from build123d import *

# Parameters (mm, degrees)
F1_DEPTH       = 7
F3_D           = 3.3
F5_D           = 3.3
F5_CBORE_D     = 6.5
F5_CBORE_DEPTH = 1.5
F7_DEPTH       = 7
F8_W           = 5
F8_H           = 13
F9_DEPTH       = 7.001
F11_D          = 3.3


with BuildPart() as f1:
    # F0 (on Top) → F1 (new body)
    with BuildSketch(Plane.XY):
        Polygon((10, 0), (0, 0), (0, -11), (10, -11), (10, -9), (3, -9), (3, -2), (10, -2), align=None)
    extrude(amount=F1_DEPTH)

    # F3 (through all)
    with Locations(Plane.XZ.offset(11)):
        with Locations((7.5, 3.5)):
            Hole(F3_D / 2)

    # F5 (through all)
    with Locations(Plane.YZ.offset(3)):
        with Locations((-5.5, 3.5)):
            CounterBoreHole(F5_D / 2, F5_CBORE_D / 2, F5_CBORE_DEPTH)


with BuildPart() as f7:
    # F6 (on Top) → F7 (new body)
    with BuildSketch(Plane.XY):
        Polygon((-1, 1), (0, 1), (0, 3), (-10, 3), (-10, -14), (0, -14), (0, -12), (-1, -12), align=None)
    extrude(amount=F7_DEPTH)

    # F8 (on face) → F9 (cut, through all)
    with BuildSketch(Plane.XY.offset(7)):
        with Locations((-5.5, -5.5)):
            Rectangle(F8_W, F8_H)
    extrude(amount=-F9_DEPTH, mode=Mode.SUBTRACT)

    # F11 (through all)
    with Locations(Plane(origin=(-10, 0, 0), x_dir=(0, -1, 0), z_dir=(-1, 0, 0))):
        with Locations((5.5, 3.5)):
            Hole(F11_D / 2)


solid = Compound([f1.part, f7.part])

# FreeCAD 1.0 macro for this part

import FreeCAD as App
import Part
import Sketcher
Q = App.Units.Quantity

doc = App.newDocument("Part")
body = doc.addObject("PartDesign::Body", "Body")

# Sketch on XY plane
sketch1 = body.newObject("Sketcher::SketchObject", "Sketch")
sketch1.AttachmentSupport = (doc.getObject("XY_Plane"), [""])
sketch1.MapMode = "FlatFace"
sketch1.addGeometry([
    Part.LineSegment(App.Vector(10, 0, 0), App.Vector(0, 0, 0)),  # 0
    Part.LineSegment(App.Vector(0, 0, 0), App.Vector(0, -11, 0)),  # 1
    Part.LineSegment(App.Vector(0, -11, 0), App.Vector(10, -11, 0)),  # 2
    Part.LineSegment(App.Vector(10, -11, 0), App.Vector(10, -9, 0)),  # 3
    Part.LineSegment(App.Vector(10, -9, 0), App.Vector(3, -9, 0)),  # 4
    Part.LineSegment(App.Vector(3, -9, 0), App.Vector(3, -2, 0)),  # 5
    Part.LineSegment(App.Vector(3, -2, 0), App.Vector(10, -2, 0)),  # 6
    Part.LineSegment(App.Vector(10, -2, 0), App.Vector(10, 0, 0)),  # 7
], False)
sketch1.addConstraint([
    Sketcher.Constraint("Coincident", 0, 2, 1, 1),
    Sketcher.Constraint("Coincident", 1, 2, 2, 1),
    Sketcher.Constraint("Coincident", 2, 2, 3, 1),
    Sketcher.Constraint("Coincident", 3, 2, 4, 1),
    Sketcher.Constraint("Coincident", 4, 2, 5, 1),
    Sketcher.Constraint("Coincident", 5, 2, 6, 1),
    Sketcher.Constraint("Coincident", 6, 2, 7, 1),
    Sketcher.Constraint("Coincident", 7, 2, 0, 1),
    Sketcher.Constraint("Horizontal", 0),
    Sketcher.Constraint("Vertical", 1),
    Sketcher.Constraint("Horizontal", 2),
    Sketcher.Constraint("Vertical", 3),
    Sketcher.Constraint("Horizontal", 4),
    Sketcher.Constraint("Vertical", 5),
    Sketcher.Constraint("Horizontal", 6),
    Sketcher.Constraint("Vertical", 7),
    Sketcher.Constraint("Coincident", 0, 2, -1, 1),
    Sketcher.Constraint("Vertical", 3, 2, 6, 2),
    Sketcher.Constraint("Equal", 6, 5),
    Sketcher.Constraint("Equal", 3, 7),
    Sketcher.Constraint("DistanceX", 0, 2, 0, 1, Q("10 mm")),
    Sketcher.Constraint("DistanceX", 4, 2, 4, 1, Q("7 mm")),
    Sketcher.Constraint("DistanceY", 1, 2, 1, 1, Q("11 mm")),
])
pad1 = body.newObject("PartDesign::Pad", "Pad")
pad1.Profile = sketch1
pad1.Length = 7

# Sketch on XZ plane
sketch2 = body.newObject("Sketcher::SketchObject", "Sketch001")
sketch2.AttachmentSupport = (doc.getObject("XZ_Plane"), [""])
sketch2.MapMode = "FlatFace"
sketch2.AttachmentOffset = App.Placement(App.Vector(0, 0, 11), App.Rotation())
sketch2.addGeometry(Part.Circle(App.Vector(7.5, 3.5, 0), App.Vector(0, 0, 1), 1.65), False)
sketch2.addConstraint([
    Sketcher.Constraint("Diameter", 0, Q("3.3 mm")),
    Sketcher.Constraint("DistanceX", -1, 1, 0, 3, Q("7.5 mm")),
    Sketcher.Constraint("DistanceY", -1, 1, 0, 3, Q("3.5 mm")),
])
doc.recompute()
hole = body.newObject("PartDesign::Hole", "Hole")
hole.Profile = sketch2
hole.ThreadType = "None"
hole.Diameter = 3.3
hole.DepthType = "ThroughAll"

# Sketch on YZ plane
sketch3 = body.newObject("Sketcher::SketchObject", "Sketch002")
sketch3.AttachmentSupport = (doc.getObject("YZ_Plane"), [""])
sketch3.MapMode = "FlatFace"
sketch3.AttachmentOffset = App.Placement(App.Vector(0, 0, 3), App.Rotation())
sketch3.addGeometry(Part.Circle(App.Vector(-5.5, 3.5, 0), App.Vector(0, 0, 1), 1.65), False)
sketch3.addConstraint([
    Sketcher.Constraint("Diameter", 0, Q("3.3 mm")),
    Sketcher.Constraint("DistanceX", 0, 3, -1, 1, Q("5.5 mm")),
    Sketcher.Constraint("DistanceY", -1, 1, 0, 3, Q("3.5 mm")),
])
doc.recompute()
hole2 = body.newObject("PartDesign::Hole", "Hole001")
hole2.Profile = sketch3
hole2.ThreadType = "None"
hole2.Diameter = 3.3
hole2.DepthType = "ThroughAll"
hole2.HoleCutType = "Counterbore"
hole2.HoleCutDiameter = 6.5
hole2.HoleCutDepth = 1.5
body2 = doc.addObject("PartDesign::Body", "Body001")

# Sketch on XY plane
sketch4 = body2.newObject("Sketcher::SketchObject", "Sketch003")
sketch4.AttachmentSupport = (doc.getObject("XY_Plane001"), [""])
sketch4.MapMode = "FlatFace"
sketch4.addGeometry([
    Part.LineSegment(App.Vector(-1, 1, 0), App.Vector(0, 1, 0)),  # 0
    Part.LineSegment(App.Vector(0, 1, 0), App.Vector(0, 3, 0)),  # 1
    Part.LineSegment(App.Vector(0, 3, 0), App.Vector(-10, 3, 0)),  # 2
    Part.LineSegment(App.Vector(-10, 3, 0), App.Vector(-10, -14, 0)),  # 3
    Part.LineSegment(App.Vector(-10, -14, 0), App.Vector(0, -14, 0)),  # 4
    Part.LineSegment(App.Vector(0, -14, 0), App.Vector(0, -12, 0)),  # 5
    Part.LineSegment(App.Vector(0, -12, 0), App.Vector(-1, -12, 0)),  # 6
    Part.LineSegment(App.Vector(-1, -12, 0), App.Vector(-1, 1, 0)),  # 7
], False)
sketch4.addConstraint([
    Sketcher.Constraint("Coincident", 0, 2, 1, 1),
    Sketcher.Constraint("Coincident", 1, 2, 2, 1),
    Sketcher.Constraint("Coincident", 2, 2, 3, 1),
    Sketcher.Constraint("Coincident", 3, 2, 4, 1),
    Sketcher.Constraint("Coincident", 4, 2, 5, 1),
    Sketcher.Constraint("Coincident", 5, 2, 6, 1),
    Sketcher.Constraint("Coincident", 6, 2, 7, 1),
    Sketcher.Constraint("Coincident", 7, 2, 0, 1),
    Sketcher.Constraint("Horizontal", 0),
    Sketcher.Constraint("Vertical", 1),
    Sketcher.Constraint("Horizontal", 2),
    Sketcher.Constraint("Vertical", 3),
    Sketcher.Constraint("Horizontal", 4),
    Sketcher.Constraint("Vertical", 5),
    Sketcher.Constraint("Horizontal", 6),
    Sketcher.Constraint("Vertical", 7),
    Sketcher.Constraint("PointOnObject", 0, 2, -2),
    Sketcher.Constraint("PointOnObject", 4, 2, -2),
    Sketcher.Constraint("Equal", 1, 5),
    Sketcher.Constraint("DistanceX", 0, 1, 0, 2, Q("1 mm")),
    Sketcher.Constraint("DistanceX", 2, 2, 2, 1, Q("10 mm")),
    Sketcher.Constraint("DistanceY", 1, 1, 1, 2, Q("2 mm")),
    Sketcher.Constraint("DistanceY", 3, 2, 3, 1, Q("17 mm")),
    Sketcher.Constraint("DistanceY", -1, 1, 0, 2, Q("1 mm")),
])
pad2 = body2.newObject("PartDesign::Pad", "Pad001")
pad2.Profile = sketch4
pad2.Length = 7

# Sketch on XY plane
sketch5 = body2.newObject("Sketcher::SketchObject", "Sketch004")
sketch5.AttachmentSupport = (doc.getObject("XY_Plane001"), [""])
sketch5.MapMode = "FlatFace"
sketch5.AttachmentOffset = App.Placement(App.Vector(0, 0, 7), App.Rotation())
sketch5.addGeometry([
    Part.LineSegment(App.Vector(-8, 1, 0), App.Vector(-8, -12, 0)),
    Part.LineSegment(App.Vector(-8, -12, 0), App.Vector(-3, -12, 0)),
    Part.LineSegment(App.Vector(-3, -12, 0), App.Vector(-3, 1, 0)),
    Part.LineSegment(App.Vector(-3, 1, 0), App.Vector(-8, 1, 0)),
], False)
sketch5.addConstraint([
    Sketcher.Constraint("Coincident", 0, 2, 1, 1),
    Sketcher.Constraint("Coincident", 1, 2, 2, 1),
    Sketcher.Constraint("Coincident", 2, 2, 3, 1),
    Sketcher.Constraint("Coincident", 3, 2, 0, 1),
    Sketcher.Constraint("Vertical", 0),
    Sketcher.Constraint("Horizontal", 1),
    Sketcher.Constraint("Vertical", 2),
    Sketcher.Constraint("Horizontal", 3),
    Sketcher.Constraint("DistanceX", 1, 1, 1, 2, Q("5 mm")),
    Sketcher.Constraint("DistanceY", 0, 2, 0, 1, Q("13 mm")),
    Sketcher.Constraint("DistanceX", 0, 2, -1, 1, Q("8 mm")),
    Sketcher.Constraint("DistanceY", 0, 2, -1, 1, Q("12 mm")),
])
pocket1 = body2.newObject("PartDesign::Pocket", "Pocket")
pocket1.Profile = sketch5
pocket1.Type = "ThroughAll"

# Sketch on YZ plane
sketch6 = body2.newObject("Sketcher::SketchObject", "Sketch005")
sketch6.AttachmentSupport = (doc.getObject("YZ_Plane001"), [""])
sketch6.MapMode = "FlatFace"
sketch6.AttachmentOffset = App.Placement(App.Vector(0, 0, -10), App.Rotation())
sketch6.addGeometry(Part.Circle(App.Vector(-5.5, 3.5, 0), App.Vector(0, 0, 1), 1.65), False)
sketch6.addConstraint([
    Sketcher.Constraint("Diameter", 0, Q("3.3 mm")),
    Sketcher.Constraint("DistanceX", 0, 3, -1, 1, Q("5.5 mm")),
    Sketcher.Constraint("DistanceY", -1, 1, 0, 3, Q("3.5 mm")),
])
doc.recompute()
hole3 = body2.newObject("PartDesign::Hole", "Hole002")
hole3.Profile = sketch6
hole3.ThreadType = "None"
hole3.Diameter = 3.3
hole3.DepthType = "ThroughAll"
hole3.Reversed = True

doc.recompute()
